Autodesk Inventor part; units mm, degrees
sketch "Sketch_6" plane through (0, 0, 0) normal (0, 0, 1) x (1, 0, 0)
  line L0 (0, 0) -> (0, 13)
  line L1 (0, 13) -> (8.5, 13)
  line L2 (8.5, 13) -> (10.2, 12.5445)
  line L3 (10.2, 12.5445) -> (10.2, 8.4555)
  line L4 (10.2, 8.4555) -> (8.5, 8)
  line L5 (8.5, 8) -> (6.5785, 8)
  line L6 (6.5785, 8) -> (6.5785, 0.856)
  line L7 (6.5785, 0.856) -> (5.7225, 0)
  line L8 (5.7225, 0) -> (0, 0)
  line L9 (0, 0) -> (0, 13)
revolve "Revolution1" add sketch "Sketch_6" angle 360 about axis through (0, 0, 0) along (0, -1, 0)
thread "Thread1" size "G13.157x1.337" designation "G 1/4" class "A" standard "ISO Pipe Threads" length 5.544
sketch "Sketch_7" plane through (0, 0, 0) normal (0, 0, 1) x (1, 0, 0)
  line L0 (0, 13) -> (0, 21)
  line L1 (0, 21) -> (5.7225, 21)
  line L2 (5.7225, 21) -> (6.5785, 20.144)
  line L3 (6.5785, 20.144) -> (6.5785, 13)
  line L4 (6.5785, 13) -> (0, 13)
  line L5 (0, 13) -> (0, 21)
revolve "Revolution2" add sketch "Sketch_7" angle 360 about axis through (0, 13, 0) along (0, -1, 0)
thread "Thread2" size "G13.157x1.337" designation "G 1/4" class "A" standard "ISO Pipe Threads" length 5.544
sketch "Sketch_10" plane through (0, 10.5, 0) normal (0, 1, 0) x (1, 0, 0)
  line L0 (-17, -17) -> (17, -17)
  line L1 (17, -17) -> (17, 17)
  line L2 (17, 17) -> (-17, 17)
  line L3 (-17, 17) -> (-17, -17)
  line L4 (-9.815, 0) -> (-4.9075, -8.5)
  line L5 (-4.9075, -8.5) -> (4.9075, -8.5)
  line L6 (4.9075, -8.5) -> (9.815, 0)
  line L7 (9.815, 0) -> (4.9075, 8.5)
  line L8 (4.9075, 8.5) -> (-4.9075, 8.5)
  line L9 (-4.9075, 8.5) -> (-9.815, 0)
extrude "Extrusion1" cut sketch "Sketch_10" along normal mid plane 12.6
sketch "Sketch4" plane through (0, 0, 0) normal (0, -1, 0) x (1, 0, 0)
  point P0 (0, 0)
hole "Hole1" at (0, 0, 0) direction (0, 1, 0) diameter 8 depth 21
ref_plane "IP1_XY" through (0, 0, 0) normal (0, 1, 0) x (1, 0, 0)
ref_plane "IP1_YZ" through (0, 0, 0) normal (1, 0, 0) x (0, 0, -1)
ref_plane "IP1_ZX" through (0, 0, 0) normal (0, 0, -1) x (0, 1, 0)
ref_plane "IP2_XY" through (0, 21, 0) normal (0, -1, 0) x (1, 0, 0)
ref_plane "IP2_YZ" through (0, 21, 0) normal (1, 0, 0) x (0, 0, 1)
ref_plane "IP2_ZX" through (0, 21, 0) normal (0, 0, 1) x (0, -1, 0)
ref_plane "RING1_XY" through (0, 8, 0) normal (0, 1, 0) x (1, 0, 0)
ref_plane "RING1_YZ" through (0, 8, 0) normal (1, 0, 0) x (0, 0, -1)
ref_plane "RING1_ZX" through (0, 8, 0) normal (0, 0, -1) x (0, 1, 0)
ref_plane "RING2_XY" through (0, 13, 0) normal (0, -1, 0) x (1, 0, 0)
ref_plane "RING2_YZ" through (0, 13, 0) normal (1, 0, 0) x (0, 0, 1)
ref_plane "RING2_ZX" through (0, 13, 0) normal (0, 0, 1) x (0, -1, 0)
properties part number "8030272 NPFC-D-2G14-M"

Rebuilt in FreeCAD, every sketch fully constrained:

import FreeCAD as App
import Part
import Sketcher
from FreeCAD import Vector
Q = App.Units.Quantity

doc = App.newDocument("Part")
body = doc.addObject("PartDesign::Body", "Body")

sketch1 = body.newObject("Sketcher::SketchObject", "Sketch")
sketch1.AttachmentSupport = (doc.getObject("XY_Plane"), [""])
sketch1.MapMode = "FlatFace"
sketch1.addGeometry([
    Part.LineSegment(Vector(0, 13, 0), Vector(0, 0, 0)),
    Part.LineSegment(Vector(0, 0, 0), Vector(5.7, 0, 0)),
    Part.LineSegment(Vector(5.7, 0, 0), Vector(6.6, 0.9, 0)),
    Part.LineSegment(Vector(6.6, 0.9, 0), Vector(6.6, 8, 0)),
    Part.LineSegment(Vector(6.6, 8, 0), Vector(8.5, 8, 0)),
    Part.LineSegment(Vector(8.5, 8, 0), Vector(10.2, 8.5, 0)),
    Part.LineSegment(Vector(10.2, 8.5, 0), Vector(10.2, 12.5, 0)),
    Part.LineSegment(Vector(10.2, 12.5, 0), Vector(8.5, 13, 0)),
    Part.LineSegment(Vector(8.5, 13, 0), Vector(0, 13, 0)),
], False)
sketch1.addConstraint([
    Sketcher.Constraint("Coincident", 0, 2, 1, 1),
    Sketcher.Constraint("Coincident", 1, 2, 2, 1),
    Sketcher.Constraint("Coincident", 2, 2, 3, 1),
    Sketcher.Constraint("Coincident", 3, 2, 4, 1),
    Sketcher.Constraint("Coincident", 4, 2, 5, 1),
    Sketcher.Constraint("Coincident", 5, 2, 6, 1),
    Sketcher.Constraint("Coincident", 6, 2, 7, 1),
    Sketcher.Constraint("Coincident", 7, 2, 8, 1),
    Sketcher.Constraint("Coincident", 8, 2, 0, 1),
    Sketcher.Constraint("Vertical", 0),
    Sketcher.Constraint("Horizontal", 1),
    Sketcher.Constraint("Vertical", 3),
    Sketcher.Constraint("Horizontal", 4),
    Sketcher.Constraint("Vertical", 6),
    Sketcher.Constraint("Horizontal", 8),
    Sketcher.Constraint("Coincident", 0, 2, -1, 1),
    Sketcher.Constraint("Vertical", 4, 2, 7, 2),
    Sketcher.Constraint("Equal", 5, 7),
    Sketcher.Constraint("DistanceY", 0, 2, 0, 1, Q("13 mm")),
    Sketcher.Constraint("Angle", 2, Q("45 deg")),
    Sketcher.Constraint("Angle", 5, Q("14.9996 deg")),
    Sketcher.Constraint("DistanceX", 8, 2, 8, 1, Q("8.5 mm")),
    Sketcher.Constraint("DistanceY", -1, 1, 3, 2, Q("8 mm")),
    Sketcher.Constraint("DistanceX", -1, 1, 5, 2, Q("10.2 mm")),
    Sketcher.Constraint("DistanceY", 3, 1, 3, 2, Q("7.144 mm")),
    Sketcher.Constraint("DistanceX", 1, 1, 1, 2, Q("5.7225 mm")),
])
revolution = body.newObject("PartDesign::Revolution", "Revolution")
revolution.Profile = sketch1
revolution.ReferenceAxis = (sketch1, ["V_Axis"])
revolution.Angle = 360

sketch2 = body.newObject("Sketcher::SketchObject", "Sketch001")
sketch2.AttachmentSupport = (doc.getObject("XY_Plane"), [""])
sketch2.MapMode = "FlatFace"
sketch2.addGeometry([
    Part.LineSegment(Vector(0, 21, 0), Vector(0, 13, 0)),
    Part.LineSegment(Vector(0, 13, 0), Vector(6.6, 13, 0)),
    Part.LineSegment(Vector(6.6, 13, 0), Vector(6.6, 20.1, 0)),
    Part.LineSegment(Vector(6.6, 20.1, 0), Vector(5.7, 21, 0)),
    Part.LineSegment(Vector(5.7, 21, 0), Vector(0, 21, 0)),
], False)
sketch2.addConstraint([
    Sketcher.Constraint("Coincident", 0, 2, 1, 1),
    Sketcher.Constraint("Coincident", 1, 2, 2, 1),
    Sketcher.Constraint("Coincident", 2, 2, 3, 1),
    Sketcher.Constraint("Coincident", 3, 2, 4, 1),
    Sketcher.Constraint("Coincident", 4, 2, 0, 1),
    Sketcher.Constraint("Vertical", 0),
    Sketcher.Constraint("Horizontal", 1),
    Sketcher.Constraint("Vertical", 2),
    Sketcher.Constraint("Horizontal", 4),
    Sketcher.Constraint("PointOnObject", 0, 2, -2),
    Sketcher.Constraint("DistanceY", 0, 2, 0, 1, Q("8 mm")),
    Sketcher.Constraint("Angle", 3, Q("135 deg")),
    Sketcher.Constraint("DistanceY", -1, 1, 0, 2, Q("13 mm")),
    Sketcher.Constraint("DistanceY", 2, 1, 2, 2, Q("7.144 mm")),
    Sketcher.Constraint("DistanceX", 1, 1, 1, 2, Q("6.5785 mm")),
])
revolution2 = body.newObject("PartDesign::Revolution", "Revolution001")
revolution2.Profile = sketch2
revolution2.ReferenceAxis = (sketch2, ["V_Axis"])
revolution2.Angle = 360

sketch3 = body.newObject("Sketcher::SketchObject", "Sketch002")
sketch3.AttachmentSupport = (doc.getObject("XZ_Plane"), [""])
sketch3.MapMode = "FlatFace"
sketch3.AttachmentOffset = App.Placement(Vector(0, 0, -10.5), App.Rotation())
sketch3.addGeometry([
    Part.LineSegment(Vector(-17, -17, 0), Vector(-17, 17, 0)),
    Part.LineSegment(Vector(-17, 17, 0), Vector(17, 17, 0)),
    Part.LineSegment(Vector(17, 17, 0), Vector(17, -17, 0)),
    Part.LineSegment(Vector(17, -17, 0), Vector(-17, -17, 0)),
    Part.LineSegment(Vector(-5, 8, 0), Vector(-10, 0, 0)),
    Part.LineSegment(Vector(-10, 0, 0), Vector(-5, -8, 0)),
    Part.LineSegment(Vector(-5, -8, 0), Vector(5, -8, 0)),
    Part.LineSegment(Vector(5, -8, 0), Vector(10, 0, 0)),
    Part.LineSegment(Vector(10, 0, 0), Vector(5, 8, 0)),
    Part.LineSegment(Vector(5, 8, 0), Vector(-5, 8, 0)),
], False)
sketch3.addConstraint([
    Sketcher.Constraint("Coincident", 0, 2, 1, 1),
    Sketcher.Constraint("Coincident", 1, 2, 2, 1),
    Sketcher.Constraint("Coincident", 2, 2, 3, 1),
    Sketcher.Constraint("Coincident", 3, 2, 0, 1),
    Sketcher.Constraint("Coincident", 4, 2, 5, 1),
    Sketcher.Constraint("Coincident", 5, 2, 6, 1),
    Sketcher.Constraint("Coincident", 6, 2, 7, 1),
    Sketcher.Constraint("Coincident", 7, 2, 8, 1),
    Sketcher.Constraint("Coincident", 8, 2, 9, 1),
    Sketcher.Constraint("Coincident", 9, 2, 4, 1),
    Sketcher.Constraint("Vertical", 0),
    Sketcher.Constraint("Horizontal", 1),
    Sketcher.Constraint("Vertical", 2),
    Sketcher.Constraint("Horizontal", 3),
    Sketcher.Constraint("Horizontal", 6),
    Sketcher.Constraint("Horizontal", 9),
    Sketcher.Constraint("Symmetric", 0, 2, 2, 2, -1, 1),
    Sketcher.Constraint("Symmetric", 4, 2, 7, 2, -1, 1),
    Sketcher.Constraint("Symmetric", 5, 2, 8, 2, -1, 1),
    Sketcher.Constraint("PointOnObject", 4, 2, -1),
    Sketcher.Constraint("Parallel", 4, 7),
    Sketcher.Constraint("Vertical", 6, 2, 8, 2),
    Sketcher.Constraint("Equal", 3, 0),
    Sketcher.Constraint("DistanceX", 1, 1, 1, 2, Q("34 mm")),
    Sketcher.Constraint("Angle", 4, Q("-120 deg")),
    Sketcher.Constraint("DistanceY", 6, 2, 8, 2, Q("17 mm")),
    Sketcher.Constraint("DistanceX", 6, 1, 6, 2, Q("9.815 mm")),
])
pocket1 = body.newObject("PartDesign::Pocket", "Pocket")
pocket1.Profile = sketch3
pocket1.Length = 12.6
pocket1.Midplane = True

sketch4 = body.newObject("Sketcher::SketchObject", "Sketch003")
sketch4.AttachmentSupport = (doc.getObject("XZ_Plane"), [""])
sketch4.MapMode = "FlatFace"
sketch4.addGeometry(Part.Circle(Vector(0, 0, 0), Vector(0, 0, 1), 4), False)
sketch4.addConstraint([
    Sketcher.Constraint("Coincident", 0, 3, -1, 1),
    Sketcher.Constraint("Diameter", 0, Q("8 mm")),
])
doc.recompute()
hole = body.newObject("PartDesign::Hole", "Hole")
hole.Profile = sketch4
hole.ThreadType = "None"
hole.Diameter = 8
hole.DepthType = "Dimension"
hole.Depth = 21
hole.DrillPoint = "Flat"

doc.recompute()
